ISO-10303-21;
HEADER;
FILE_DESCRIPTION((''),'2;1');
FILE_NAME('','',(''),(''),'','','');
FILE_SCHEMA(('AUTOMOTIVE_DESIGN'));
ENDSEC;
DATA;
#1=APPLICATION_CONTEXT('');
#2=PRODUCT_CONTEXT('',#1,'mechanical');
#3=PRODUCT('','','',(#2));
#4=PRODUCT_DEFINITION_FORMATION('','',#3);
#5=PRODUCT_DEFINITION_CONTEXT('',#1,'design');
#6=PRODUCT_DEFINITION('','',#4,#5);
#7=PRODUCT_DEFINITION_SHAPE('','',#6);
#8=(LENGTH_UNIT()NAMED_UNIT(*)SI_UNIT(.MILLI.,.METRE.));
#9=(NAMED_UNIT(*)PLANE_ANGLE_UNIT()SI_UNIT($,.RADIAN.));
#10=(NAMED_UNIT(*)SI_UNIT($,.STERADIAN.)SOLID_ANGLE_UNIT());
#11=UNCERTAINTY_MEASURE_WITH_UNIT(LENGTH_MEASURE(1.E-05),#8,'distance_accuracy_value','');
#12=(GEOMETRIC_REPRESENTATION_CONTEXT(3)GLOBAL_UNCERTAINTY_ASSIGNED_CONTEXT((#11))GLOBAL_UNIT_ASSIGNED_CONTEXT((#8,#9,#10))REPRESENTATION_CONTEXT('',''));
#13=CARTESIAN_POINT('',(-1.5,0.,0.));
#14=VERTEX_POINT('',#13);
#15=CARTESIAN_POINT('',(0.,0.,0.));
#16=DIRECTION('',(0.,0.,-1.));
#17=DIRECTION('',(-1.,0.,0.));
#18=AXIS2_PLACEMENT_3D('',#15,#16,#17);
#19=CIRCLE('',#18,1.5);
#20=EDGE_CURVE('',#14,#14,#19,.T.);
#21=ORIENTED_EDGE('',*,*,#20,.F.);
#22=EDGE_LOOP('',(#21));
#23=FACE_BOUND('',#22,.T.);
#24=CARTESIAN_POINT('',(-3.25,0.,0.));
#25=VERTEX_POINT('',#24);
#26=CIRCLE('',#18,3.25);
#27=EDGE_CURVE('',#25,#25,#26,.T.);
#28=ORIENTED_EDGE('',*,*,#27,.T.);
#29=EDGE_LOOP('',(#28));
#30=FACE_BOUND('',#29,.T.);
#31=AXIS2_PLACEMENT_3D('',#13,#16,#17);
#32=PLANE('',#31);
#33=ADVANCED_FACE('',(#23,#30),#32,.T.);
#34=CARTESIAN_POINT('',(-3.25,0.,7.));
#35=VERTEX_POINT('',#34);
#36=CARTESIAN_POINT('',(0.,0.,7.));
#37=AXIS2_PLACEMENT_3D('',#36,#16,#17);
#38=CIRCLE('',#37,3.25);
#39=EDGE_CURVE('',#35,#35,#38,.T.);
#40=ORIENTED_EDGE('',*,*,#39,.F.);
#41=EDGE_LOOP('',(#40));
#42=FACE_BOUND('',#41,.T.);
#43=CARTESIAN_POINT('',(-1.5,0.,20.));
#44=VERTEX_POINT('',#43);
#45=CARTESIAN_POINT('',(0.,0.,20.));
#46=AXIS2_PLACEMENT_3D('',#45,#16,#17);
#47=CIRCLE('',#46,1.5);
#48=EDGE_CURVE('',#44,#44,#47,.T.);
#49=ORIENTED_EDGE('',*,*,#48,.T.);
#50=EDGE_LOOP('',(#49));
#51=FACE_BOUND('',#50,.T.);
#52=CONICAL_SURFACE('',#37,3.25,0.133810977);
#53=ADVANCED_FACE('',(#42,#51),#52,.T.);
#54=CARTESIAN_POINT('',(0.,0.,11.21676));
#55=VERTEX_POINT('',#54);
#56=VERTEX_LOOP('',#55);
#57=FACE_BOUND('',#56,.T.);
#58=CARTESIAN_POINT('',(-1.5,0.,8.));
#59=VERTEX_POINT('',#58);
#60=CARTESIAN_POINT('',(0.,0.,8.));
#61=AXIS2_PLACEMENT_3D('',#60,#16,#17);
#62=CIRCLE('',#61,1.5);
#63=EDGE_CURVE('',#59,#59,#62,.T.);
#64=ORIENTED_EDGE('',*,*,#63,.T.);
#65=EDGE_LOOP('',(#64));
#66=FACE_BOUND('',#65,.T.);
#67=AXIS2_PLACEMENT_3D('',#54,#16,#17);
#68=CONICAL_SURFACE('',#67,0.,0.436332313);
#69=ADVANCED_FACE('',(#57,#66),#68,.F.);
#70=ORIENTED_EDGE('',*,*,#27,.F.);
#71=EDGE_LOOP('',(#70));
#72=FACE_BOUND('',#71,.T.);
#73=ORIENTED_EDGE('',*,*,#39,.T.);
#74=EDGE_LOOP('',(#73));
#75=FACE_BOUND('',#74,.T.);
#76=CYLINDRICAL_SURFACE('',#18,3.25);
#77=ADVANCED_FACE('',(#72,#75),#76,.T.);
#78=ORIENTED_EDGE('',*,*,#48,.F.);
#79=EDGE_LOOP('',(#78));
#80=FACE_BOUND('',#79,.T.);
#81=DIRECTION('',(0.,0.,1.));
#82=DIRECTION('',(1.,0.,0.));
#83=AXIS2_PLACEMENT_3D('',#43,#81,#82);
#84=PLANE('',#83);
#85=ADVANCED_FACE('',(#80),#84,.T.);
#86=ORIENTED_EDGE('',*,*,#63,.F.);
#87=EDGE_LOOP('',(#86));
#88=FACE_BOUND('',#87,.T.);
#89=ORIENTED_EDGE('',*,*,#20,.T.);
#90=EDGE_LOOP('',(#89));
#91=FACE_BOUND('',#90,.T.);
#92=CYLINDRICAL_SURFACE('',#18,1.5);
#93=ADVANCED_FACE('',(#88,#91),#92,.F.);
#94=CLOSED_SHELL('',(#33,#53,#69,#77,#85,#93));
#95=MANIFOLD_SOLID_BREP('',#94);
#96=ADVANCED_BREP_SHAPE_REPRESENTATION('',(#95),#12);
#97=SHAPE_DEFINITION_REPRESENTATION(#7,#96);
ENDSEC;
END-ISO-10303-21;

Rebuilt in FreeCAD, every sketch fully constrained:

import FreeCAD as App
import Part
import Sketcher

V = App.Vector
Q = App.Units.Quantity

doc = App.newDocument("Part")
body = doc.addObject("PartDesign::Body", "Body")

# Sketch on XZ plane
sketch1 = doc.addObject("Sketcher::SketchObject", "Sketch")
body.addObject(sketch1)
sketch1.AttachmentSupport = (doc.XZ_Plane, [""])
sketch1.MapMode = "FlatFace"
sketch1.addGeometry([
    Part.LineSegment(V(0, 11.2, 0), V(-1.5, 8, 0)),  # 0
    Part.LineSegment(V(-1.5, 8, 0), V(-1.5, 0, 0)),  # 1
    Part.LineSegment(V(-1.5, 0, 0), V(-3.2, 0, 0)),  # 2
    Part.LineSegment(V(-3.2, 0, 0), V(-3.2, 7, 0)),  # 3
    Part.LineSegment(V(-3.2, 7, 0), V(-1.5, 20, 0)),  # 4
    Part.LineSegment(V(-1.5, 20, 0), V(0, 20, 0)),  # 5
    Part.LineSegment(V(0, 20, 0), V(0, 11.2, 0)),  # 6
], False)
sketch1.addConstraint([
    Sketcher.Constraint("Coincident", 0, 2, 1, 1),
    Sketcher.Constraint("Coincident", 1, 2, 2, 1),
    Sketcher.Constraint("Coincident", 2, 2, 3, 1),
    Sketcher.Constraint("Coincident", 3, 2, 4, 1),
    Sketcher.Constraint("Coincident", 4, 2, 5, 1),
    Sketcher.Constraint("Coincident", 5, 2, 6, 1),
    Sketcher.Constraint("Coincident", 6, 2, 0, 1),
    Sketcher.Constraint("Vertical", 1),
    Sketcher.Constraint("Horizontal", 2),
    Sketcher.Constraint("Vertical", 3),
    Sketcher.Constraint("Horizontal", 5),
    Sketcher.Constraint("Vertical", 6),
    Sketcher.Constraint("PointOnObject", 1, 2, -1),
    Sketcher.Constraint("PointOnObject", 5, 2, -2),
    Sketcher.Constraint("Vertical", 1, 2, 4, 2),
    Sketcher.Constraint("DistanceY", 1, 2, 1, 1, Q("8 mm")),
    Sketcher.Constraint("DistanceY", 3, 1, 3, 2, Q("7 mm")),
    Sketcher.Constraint("Angle", 0, Q("-115 deg")),
    Sketcher.Constraint("DistanceX", 5, 1, 5, 2, Q("1.5 mm")),
    Sketcher.Constraint("DistanceY", -1, 1, 4, 2, Q("20 mm")),
    Sketcher.Constraint("DistanceX", 2, 2, 2, 1, Q("1.75 mm")),
])
revolution = doc.addObject("PartDesign::Revolution", "Revolution")
body.addObject(revolution)
revolution.Profile = sketch1
revolution.ReferenceAxis = (sketch1, ["V_Axis"])
revolution.Angle = 360

doc.recompute()
